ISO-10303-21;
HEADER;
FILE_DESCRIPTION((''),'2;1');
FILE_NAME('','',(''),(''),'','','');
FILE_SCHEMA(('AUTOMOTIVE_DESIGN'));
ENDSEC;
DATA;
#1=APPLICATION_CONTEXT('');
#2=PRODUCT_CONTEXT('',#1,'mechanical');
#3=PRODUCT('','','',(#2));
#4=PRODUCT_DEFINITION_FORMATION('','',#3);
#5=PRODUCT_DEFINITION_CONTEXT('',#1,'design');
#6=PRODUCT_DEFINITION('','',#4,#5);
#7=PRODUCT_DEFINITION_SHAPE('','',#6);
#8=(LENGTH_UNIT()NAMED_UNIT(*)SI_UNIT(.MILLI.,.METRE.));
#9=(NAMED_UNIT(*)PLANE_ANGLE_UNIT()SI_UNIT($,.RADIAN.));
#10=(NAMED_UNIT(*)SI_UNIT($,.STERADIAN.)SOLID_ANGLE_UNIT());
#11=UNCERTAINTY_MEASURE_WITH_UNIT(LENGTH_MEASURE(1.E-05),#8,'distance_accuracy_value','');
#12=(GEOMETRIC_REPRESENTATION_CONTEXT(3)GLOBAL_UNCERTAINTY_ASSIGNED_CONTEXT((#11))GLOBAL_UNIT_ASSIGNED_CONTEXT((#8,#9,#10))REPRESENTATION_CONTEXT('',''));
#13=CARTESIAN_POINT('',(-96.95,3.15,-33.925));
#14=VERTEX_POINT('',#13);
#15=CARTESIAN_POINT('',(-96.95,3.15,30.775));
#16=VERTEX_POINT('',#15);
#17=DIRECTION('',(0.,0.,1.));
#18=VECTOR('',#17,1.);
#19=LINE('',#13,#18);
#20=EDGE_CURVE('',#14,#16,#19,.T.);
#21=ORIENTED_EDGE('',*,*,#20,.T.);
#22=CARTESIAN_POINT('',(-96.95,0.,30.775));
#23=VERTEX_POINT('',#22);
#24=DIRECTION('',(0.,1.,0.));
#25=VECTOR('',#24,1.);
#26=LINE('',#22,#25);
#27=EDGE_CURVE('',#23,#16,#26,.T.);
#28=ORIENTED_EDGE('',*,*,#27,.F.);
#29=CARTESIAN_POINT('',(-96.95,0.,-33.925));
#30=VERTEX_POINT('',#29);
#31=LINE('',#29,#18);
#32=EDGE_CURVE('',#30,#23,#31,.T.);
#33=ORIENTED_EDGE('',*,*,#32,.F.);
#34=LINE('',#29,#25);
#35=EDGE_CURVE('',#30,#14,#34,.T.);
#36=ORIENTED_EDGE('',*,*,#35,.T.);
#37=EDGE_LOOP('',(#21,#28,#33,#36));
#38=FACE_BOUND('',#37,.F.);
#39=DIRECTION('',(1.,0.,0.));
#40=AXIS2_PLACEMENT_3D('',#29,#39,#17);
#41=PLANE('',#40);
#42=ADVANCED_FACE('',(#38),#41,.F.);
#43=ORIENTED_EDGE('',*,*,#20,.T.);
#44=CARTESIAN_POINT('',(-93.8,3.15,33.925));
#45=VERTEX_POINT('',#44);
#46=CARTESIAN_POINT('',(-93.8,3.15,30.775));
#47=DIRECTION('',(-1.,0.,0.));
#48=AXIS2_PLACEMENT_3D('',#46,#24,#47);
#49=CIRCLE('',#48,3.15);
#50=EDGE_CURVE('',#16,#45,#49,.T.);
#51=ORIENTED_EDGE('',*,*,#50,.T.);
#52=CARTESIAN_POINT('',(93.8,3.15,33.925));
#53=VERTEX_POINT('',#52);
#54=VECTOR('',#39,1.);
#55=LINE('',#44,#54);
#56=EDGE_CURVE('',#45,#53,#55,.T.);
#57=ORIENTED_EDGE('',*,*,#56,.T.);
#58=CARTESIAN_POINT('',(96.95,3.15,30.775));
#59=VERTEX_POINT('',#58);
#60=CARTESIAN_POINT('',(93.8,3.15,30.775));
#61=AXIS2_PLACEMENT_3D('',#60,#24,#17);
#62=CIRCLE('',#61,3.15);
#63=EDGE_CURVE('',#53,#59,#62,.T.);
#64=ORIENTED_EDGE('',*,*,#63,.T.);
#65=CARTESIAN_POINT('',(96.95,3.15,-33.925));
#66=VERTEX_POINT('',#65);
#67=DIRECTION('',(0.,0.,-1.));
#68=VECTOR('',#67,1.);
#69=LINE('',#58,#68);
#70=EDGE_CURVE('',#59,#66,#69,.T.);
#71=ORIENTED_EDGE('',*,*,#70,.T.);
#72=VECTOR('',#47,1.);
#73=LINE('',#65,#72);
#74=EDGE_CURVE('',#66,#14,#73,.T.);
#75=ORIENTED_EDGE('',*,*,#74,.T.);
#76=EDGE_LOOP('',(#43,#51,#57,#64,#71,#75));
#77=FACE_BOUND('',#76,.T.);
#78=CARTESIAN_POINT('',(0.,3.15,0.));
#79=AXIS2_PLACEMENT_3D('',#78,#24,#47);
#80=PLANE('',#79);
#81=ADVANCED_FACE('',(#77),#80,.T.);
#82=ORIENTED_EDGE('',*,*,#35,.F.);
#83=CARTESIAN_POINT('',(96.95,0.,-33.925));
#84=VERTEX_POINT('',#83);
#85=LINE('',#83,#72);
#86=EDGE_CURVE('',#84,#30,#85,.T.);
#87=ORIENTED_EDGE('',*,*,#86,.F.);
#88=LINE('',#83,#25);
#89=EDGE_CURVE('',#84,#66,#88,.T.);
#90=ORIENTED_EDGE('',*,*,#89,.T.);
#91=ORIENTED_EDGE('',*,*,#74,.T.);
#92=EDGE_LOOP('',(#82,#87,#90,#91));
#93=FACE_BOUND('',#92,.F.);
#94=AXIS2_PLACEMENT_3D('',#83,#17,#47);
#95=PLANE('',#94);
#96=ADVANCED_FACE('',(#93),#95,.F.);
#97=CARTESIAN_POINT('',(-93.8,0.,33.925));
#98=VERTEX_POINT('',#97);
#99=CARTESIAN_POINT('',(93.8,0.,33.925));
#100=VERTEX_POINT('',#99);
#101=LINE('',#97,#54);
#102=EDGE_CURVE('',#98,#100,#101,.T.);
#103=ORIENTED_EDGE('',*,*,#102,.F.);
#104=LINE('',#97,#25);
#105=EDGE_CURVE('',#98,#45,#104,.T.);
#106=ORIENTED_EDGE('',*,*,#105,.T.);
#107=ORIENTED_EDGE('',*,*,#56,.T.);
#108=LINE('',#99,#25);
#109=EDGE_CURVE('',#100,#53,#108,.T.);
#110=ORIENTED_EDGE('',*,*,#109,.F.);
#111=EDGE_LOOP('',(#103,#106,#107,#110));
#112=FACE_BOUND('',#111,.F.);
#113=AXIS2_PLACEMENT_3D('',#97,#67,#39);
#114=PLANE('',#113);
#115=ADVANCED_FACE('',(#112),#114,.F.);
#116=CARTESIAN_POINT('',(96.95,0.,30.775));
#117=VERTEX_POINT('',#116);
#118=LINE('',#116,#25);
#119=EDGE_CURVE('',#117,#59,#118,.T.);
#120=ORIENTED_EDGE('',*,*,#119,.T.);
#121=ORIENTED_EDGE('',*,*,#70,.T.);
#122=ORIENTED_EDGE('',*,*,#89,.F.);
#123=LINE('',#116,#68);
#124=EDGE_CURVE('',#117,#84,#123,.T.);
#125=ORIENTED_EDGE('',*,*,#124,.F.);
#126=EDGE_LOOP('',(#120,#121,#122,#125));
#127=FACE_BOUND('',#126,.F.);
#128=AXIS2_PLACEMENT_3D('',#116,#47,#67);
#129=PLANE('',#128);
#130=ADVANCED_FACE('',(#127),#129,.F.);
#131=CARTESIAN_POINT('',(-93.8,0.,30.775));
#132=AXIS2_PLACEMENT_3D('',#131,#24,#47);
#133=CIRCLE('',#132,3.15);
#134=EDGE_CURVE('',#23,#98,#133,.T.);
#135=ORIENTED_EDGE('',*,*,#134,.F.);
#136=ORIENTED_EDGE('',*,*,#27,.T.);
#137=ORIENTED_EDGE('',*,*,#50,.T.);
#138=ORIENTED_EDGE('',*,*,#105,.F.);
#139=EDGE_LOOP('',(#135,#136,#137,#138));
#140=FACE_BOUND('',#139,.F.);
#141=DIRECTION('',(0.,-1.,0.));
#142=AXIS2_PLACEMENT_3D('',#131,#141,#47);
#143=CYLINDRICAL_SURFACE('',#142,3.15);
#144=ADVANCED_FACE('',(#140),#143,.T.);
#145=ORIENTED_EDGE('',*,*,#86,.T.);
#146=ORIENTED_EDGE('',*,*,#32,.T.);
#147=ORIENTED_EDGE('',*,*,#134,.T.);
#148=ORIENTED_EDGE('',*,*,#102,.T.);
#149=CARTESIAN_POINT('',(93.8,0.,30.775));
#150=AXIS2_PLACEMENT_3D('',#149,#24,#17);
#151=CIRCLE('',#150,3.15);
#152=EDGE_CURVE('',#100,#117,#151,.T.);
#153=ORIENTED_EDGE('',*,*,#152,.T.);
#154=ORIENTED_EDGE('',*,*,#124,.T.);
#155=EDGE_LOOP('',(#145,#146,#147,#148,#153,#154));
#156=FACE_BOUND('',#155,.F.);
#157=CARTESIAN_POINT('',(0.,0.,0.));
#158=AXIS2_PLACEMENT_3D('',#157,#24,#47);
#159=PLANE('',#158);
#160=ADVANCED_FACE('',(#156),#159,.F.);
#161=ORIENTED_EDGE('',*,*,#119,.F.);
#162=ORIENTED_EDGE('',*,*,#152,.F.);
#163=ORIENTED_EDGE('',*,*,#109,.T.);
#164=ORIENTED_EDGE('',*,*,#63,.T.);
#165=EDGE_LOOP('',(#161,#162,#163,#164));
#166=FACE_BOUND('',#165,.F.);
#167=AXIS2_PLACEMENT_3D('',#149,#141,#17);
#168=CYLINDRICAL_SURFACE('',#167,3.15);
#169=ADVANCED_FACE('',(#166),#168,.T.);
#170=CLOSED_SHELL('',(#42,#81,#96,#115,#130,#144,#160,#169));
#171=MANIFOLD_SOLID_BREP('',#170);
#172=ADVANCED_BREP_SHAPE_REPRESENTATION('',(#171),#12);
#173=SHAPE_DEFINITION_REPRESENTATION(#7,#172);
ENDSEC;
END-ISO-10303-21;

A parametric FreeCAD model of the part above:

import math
import FreeCAD as App
import Part
import Sketcher

V = App.Vector
Q = App.Units.Quantity

doc = App.newDocument("Part")
body = doc.addObject("PartDesign::Body", "Body")

# Sketch on XZ plane
sketch1 = doc.addObject("Sketcher::SketchObject", "Sketch")
body.addObject(sketch1)
sketch1.AttachmentSupport = (doc.XZ_Plane, [""])
sketch1.MapMode = "FlatFace"
sketch1.addGeometry([
    Part.LineSegment(V(97, 30.8, 0), V(97, -33.9, 0)),  # 0
    Part.LineSegment(V(97, -33.9, 0), V(-97, -33.9, 0)),  # 1
    Part.LineSegment(V(-97, -33.9, 0), V(-97, 30.8, 0)),  # 2
    Part.ArcOfCircle(Part.Circle(V(-93.8, 30.8, 0), V(0, 0, 1), 3.2), math.radians(90), math.radians(180)),  # 3
    Part.LineSegment(V(-93.8, 33.9, 0), V(93.8, 33.9, 0)),  # 4
    Part.ArcOfCircle(Part.Circle(V(93.8, 30.8, 0), V(0, 0, 1), 3.1), math.radians(0), math.radians(90)),  # 5
], False)
sketch1.addConstraint([
    Sketcher.Constraint("Coincident", 0, 2, 1, 1),
    Sketcher.Constraint("Coincident", 1, 2, 2, 1),
    Sketcher.Constraint("Tangent", 2, 2, 3, 2),
    Sketcher.Constraint("Tangent", 3, 1, 4, 1),
    Sketcher.Constraint("Tangent", 4, 2, 5, 2),
    Sketcher.Constraint("Tangent", 5, 1, 0, 1),
    Sketcher.Constraint("Vertical", 0),
    Sketcher.Constraint("Horizontal", 1),
    Sketcher.Constraint("Vertical", 2),
    Sketcher.Constraint("Horizontal", 4),
    Sketcher.Constraint("Equal", 3, 5),
    Sketcher.Constraint("Radius", 3, Q("3.15 mm")),
    Sketcher.Constraint("DistanceX", 1, 2, 1, 1, Q("193.9 mm")),
    Sketcher.Constraint("DistanceY", 1, 2, 3, 1, Q("67.85 mm")),
    Sketcher.Constraint("DistanceX", 3, 3, -1, 1, Q("93.8 mm")),
    Sketcher.Constraint("DistanceY", -1, 1, 3, 3, Q("30.775 mm")),
])
pad1 = doc.addObject("PartDesign::Pad", "Pad")
body.addObject(pad1)
pad1.Profile = sketch1
pad1.Length = 3.15
pad1.Reversed = True

doc.recompute()
